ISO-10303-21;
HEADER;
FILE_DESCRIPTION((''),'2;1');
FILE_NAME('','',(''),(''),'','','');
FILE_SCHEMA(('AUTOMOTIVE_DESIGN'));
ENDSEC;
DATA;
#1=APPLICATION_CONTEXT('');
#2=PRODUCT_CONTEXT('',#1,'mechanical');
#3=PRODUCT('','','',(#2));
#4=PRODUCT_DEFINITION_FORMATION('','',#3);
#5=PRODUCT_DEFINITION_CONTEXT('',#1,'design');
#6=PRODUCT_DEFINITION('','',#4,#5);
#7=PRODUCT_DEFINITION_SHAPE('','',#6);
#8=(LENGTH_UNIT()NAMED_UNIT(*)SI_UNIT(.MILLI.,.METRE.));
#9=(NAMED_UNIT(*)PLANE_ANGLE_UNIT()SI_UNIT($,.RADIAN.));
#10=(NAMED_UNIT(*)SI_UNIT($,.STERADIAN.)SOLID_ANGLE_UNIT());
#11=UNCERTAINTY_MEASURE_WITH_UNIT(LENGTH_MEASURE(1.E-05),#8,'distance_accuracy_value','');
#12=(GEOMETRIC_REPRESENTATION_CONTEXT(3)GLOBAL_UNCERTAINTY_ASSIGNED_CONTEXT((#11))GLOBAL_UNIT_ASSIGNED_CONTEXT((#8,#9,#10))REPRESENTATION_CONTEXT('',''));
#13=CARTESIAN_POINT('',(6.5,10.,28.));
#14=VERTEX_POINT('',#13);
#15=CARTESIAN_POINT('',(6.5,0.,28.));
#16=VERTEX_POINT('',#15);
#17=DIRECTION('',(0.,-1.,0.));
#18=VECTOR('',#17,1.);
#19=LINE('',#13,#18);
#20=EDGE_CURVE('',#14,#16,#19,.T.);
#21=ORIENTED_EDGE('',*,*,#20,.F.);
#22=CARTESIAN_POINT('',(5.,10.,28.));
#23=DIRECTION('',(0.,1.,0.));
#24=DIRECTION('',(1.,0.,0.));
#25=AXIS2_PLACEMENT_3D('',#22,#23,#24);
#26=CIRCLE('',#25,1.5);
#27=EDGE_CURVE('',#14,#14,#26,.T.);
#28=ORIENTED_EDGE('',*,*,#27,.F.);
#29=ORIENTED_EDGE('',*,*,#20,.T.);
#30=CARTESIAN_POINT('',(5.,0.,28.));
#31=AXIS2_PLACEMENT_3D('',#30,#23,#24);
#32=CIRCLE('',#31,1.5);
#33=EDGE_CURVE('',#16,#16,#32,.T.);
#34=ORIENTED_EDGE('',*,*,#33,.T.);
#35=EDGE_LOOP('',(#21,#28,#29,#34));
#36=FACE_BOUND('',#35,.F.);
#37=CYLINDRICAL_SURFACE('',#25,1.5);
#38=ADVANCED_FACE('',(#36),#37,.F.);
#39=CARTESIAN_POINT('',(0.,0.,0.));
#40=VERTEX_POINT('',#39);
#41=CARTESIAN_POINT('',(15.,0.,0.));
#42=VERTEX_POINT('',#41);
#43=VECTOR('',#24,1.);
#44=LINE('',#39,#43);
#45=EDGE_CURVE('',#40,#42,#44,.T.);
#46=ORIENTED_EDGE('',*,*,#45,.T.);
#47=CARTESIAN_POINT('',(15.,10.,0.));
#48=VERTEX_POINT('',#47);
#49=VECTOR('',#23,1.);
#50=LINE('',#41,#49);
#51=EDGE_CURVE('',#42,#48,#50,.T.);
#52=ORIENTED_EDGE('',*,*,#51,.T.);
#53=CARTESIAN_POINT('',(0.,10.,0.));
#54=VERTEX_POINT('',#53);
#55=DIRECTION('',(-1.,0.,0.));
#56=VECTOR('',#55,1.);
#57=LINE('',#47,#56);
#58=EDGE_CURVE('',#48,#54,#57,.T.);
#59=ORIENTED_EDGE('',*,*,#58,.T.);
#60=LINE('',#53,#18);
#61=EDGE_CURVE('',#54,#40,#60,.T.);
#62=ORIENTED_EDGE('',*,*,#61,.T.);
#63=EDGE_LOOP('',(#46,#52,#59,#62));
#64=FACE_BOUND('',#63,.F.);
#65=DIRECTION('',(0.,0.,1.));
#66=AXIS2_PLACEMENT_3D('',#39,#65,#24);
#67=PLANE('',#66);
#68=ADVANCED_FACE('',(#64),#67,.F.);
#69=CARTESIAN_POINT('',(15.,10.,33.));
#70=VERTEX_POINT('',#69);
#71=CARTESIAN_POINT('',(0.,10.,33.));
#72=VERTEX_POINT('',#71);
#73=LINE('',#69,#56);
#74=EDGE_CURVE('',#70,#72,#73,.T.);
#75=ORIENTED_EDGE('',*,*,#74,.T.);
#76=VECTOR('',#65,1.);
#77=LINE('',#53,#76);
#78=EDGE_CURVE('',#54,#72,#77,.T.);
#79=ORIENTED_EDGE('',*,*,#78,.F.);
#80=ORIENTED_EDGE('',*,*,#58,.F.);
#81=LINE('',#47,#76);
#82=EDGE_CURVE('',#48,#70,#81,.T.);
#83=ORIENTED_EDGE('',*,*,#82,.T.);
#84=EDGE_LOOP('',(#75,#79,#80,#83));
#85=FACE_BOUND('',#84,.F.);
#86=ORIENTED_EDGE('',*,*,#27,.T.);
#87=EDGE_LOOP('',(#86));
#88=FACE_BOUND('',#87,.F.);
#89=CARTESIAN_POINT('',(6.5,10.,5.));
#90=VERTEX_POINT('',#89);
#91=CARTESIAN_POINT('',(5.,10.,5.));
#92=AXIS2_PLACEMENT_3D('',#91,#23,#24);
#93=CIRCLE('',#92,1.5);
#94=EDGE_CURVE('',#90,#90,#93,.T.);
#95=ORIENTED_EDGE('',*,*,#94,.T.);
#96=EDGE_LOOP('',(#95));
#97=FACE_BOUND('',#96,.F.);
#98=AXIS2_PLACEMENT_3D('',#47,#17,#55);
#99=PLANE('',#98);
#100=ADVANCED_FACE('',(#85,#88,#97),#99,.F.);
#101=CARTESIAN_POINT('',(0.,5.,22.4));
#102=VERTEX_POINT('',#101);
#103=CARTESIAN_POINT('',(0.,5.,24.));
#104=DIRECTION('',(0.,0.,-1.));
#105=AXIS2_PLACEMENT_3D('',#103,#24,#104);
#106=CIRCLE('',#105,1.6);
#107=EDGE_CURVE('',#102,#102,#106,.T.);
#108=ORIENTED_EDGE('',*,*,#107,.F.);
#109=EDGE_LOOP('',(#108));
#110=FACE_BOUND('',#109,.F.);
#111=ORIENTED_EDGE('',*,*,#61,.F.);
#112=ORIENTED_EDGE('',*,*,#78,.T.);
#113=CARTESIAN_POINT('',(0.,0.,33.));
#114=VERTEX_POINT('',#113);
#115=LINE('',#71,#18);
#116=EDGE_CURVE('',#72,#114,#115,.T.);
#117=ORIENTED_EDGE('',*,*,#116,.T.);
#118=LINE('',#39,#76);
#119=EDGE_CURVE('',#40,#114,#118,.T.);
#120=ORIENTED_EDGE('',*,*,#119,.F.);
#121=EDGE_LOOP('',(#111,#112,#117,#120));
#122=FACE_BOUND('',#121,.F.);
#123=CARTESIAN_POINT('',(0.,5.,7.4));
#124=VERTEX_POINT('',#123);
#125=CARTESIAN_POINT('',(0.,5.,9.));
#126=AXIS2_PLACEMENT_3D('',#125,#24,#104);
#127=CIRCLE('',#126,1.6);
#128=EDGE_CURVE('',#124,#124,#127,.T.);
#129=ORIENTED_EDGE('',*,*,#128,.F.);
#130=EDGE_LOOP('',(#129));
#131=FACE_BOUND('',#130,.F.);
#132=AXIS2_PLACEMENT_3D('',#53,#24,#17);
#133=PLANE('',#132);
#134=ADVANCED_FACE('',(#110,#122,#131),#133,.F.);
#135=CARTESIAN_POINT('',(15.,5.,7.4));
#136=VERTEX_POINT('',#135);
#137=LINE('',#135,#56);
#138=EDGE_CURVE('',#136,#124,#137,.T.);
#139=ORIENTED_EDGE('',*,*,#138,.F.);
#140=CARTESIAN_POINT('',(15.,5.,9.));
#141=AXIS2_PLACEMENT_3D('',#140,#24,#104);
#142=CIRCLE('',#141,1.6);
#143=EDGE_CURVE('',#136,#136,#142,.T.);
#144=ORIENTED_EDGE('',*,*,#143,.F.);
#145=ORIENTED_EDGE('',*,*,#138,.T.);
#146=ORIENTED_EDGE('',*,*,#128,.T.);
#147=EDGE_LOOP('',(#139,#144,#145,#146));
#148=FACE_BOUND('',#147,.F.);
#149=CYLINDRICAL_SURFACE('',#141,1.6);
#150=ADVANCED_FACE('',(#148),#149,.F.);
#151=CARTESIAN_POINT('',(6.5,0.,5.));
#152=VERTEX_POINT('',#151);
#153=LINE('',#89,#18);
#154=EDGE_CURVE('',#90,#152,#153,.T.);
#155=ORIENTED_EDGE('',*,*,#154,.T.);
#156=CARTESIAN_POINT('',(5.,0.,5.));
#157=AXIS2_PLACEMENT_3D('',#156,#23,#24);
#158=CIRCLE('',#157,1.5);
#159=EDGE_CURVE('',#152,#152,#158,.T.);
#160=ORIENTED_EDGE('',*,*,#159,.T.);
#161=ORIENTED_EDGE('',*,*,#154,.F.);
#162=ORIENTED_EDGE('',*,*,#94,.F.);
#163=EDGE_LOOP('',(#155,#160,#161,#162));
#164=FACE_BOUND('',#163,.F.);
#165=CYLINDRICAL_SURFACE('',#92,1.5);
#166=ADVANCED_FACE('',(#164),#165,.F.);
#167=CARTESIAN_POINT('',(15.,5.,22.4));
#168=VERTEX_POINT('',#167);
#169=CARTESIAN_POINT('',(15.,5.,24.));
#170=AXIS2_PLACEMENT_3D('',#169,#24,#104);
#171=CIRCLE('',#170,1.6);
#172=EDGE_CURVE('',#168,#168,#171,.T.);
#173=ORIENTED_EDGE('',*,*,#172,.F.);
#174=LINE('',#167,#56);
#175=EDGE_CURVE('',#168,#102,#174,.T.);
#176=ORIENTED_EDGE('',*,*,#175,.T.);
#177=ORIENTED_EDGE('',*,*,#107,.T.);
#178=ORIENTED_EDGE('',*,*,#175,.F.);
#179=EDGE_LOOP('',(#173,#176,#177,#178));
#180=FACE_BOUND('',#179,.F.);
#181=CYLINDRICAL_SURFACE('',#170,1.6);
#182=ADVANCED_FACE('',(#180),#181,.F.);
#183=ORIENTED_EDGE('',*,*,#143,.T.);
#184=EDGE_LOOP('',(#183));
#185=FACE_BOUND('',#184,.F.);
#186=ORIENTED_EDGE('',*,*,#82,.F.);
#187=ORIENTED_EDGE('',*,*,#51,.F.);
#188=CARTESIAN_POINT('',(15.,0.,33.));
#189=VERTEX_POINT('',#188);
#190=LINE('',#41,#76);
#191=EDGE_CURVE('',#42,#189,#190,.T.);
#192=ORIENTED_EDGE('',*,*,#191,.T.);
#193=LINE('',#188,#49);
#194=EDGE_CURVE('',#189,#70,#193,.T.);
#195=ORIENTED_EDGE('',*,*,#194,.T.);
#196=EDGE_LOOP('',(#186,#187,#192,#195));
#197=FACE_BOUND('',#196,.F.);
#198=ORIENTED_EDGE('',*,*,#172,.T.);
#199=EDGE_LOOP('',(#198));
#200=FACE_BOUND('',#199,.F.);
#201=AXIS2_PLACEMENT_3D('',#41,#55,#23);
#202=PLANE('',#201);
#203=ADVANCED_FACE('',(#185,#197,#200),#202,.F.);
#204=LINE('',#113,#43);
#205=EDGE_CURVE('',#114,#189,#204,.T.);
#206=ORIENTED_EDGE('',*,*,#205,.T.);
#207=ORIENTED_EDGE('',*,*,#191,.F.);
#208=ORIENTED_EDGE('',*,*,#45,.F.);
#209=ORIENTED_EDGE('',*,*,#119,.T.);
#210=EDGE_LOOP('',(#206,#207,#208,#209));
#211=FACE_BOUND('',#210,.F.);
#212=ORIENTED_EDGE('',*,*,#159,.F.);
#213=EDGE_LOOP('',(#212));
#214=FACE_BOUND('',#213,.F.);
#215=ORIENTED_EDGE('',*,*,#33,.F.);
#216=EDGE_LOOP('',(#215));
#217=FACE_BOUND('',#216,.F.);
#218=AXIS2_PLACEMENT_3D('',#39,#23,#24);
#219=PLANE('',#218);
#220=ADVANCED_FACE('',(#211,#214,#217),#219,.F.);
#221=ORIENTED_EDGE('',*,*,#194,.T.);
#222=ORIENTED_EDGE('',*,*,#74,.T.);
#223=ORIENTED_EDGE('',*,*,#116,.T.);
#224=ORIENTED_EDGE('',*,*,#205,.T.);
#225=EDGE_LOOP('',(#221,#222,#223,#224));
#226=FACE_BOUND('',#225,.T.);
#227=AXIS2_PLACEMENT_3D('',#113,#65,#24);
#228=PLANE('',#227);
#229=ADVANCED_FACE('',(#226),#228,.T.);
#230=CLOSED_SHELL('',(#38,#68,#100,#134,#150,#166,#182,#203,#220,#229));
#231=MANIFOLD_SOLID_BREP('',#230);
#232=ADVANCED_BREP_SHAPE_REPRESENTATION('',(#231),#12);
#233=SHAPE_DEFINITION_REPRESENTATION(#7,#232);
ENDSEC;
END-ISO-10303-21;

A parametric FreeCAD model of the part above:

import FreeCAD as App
import Part
import Sketcher

V = App.Vector


def add_polygon(sketch, points):
    """Adds a closed chain of lines whose ends are joined by coincident constraints."""
    first, n = sketch.GeometryCount, len(points)
    for a, b in zip(points, points[1:] + points[:1]):
        sketch.addGeometry(Part.LineSegment(App.Vector(*a, 0), App.Vector(*b, 0)), False)
    for i in range(n):
        sketch.addConstraint(Sketcher.Constraint("Coincident", first + i, 2, first + (i + 1) % n, 1))

doc = App.newDocument("Part")
body = doc.addObject("PartDesign::Body", "Body")

# Sketch on XY plane
sketch1 = body.newObject("Sketcher::SketchObject", "Sketch")
sketch1.AttachmentSupport = (doc.getObject("XY_Plane"), [""])
sketch1.MapMode = "FlatFace"
add_polygon(sketch1, [(0, 10), (0, 0), (15, 0), (15, 10)])  # lines 0-3
sketch1.addConstraint([
    Sketcher.Constraint("Vertical", 0),
    Sketcher.Constraint("Horizontal", 1),
    Sketcher.Constraint("Vertical", 2),
    Sketcher.Constraint("Horizontal", 3),
    Sketcher.Constraint("Coincident", 0, 2, -1, 1),
    Sketcher.Constraint("DistanceX", 1, 1, 1, 2, 15.0),
    Sketcher.Constraint("DistanceY", 0, 2, 0, 1, 10.0),
])
pad1 = body.newObject("PartDesign::Pad", "Pad")
pad1.Profile = sketch1
pad1.Length = 33

# Sketch on XZ plane
sketch2 = body.newObject("Sketcher::SketchObject", "Sketch001")
sketch2.AttachmentSupport = (doc.getObject("XZ_Plane"), [""])
sketch2.MapMode = "FlatFace"
sketch2.AttachmentOffset = App.Placement(V(0, 0, -10), App.Rotation())
sketch2.addGeometry([
    Part.Circle(V(5, 5, 0), V(0, 0, 1), 1.5),
    Part.Circle(V(5, 28, 0), V(0, 0, 1), 1.5),
], False)
sketch2.addConstraint([
    Sketcher.Constraint("Equal", 0, 1),
    Sketcher.Constraint("Vertical", 0, 3, 1, 3),
    Sketcher.Constraint("Diameter", 0, 3.0),
    Sketcher.Constraint("DistanceX", -1, 1, 0, 3, 5.0),
    Sketcher.Constraint("DistanceY", -1, 1, 0, 3, 5.0),
    Sketcher.Constraint("DistanceY", -1, 1, 1, 3, 28.0),
])
pocket1 = body.newObject("PartDesign::Pocket", "Pocket")
pocket1.Profile = sketch2
pocket1.Length = 10
pocket1.Reversed = True

# Sketch on YZ plane
sketch3 = body.newObject("Sketcher::SketchObject", "Sketch002")
sketch3.AttachmentSupport = (doc.getObject("YZ_Plane"), [""])
sketch3.MapMode = "FlatFace"
sketch3.AttachmentOffset = App.Placement(V(0, 0, 15), App.Rotation())
sketch3.addGeometry([
    Part.Circle(V(5, 9, 0), V(0, 0, 1), 1.6),
    Part.Circle(V(5, 24, 0), V(0, 0, 1), 1.6),
], False)
sketch3.addConstraint([
    Sketcher.Constraint("Equal", 0, 1),
    Sketcher.Constraint("Vertical", 0, 3, 1, 3),
    Sketcher.Constraint("Diameter", 0, 3.2),
    Sketcher.Constraint("DistanceX", -1, 1, 0, 3, 5.0),
    Sketcher.Constraint("DistanceY", -1, 1, 0, 3, 9.0),
    Sketcher.Constraint("DistanceY", -1, 1, 1, 3, 24.0),
])
pocket2 = body.newObject("PartDesign::Pocket", "Pocket001")
pocket2.Profile = sketch3
pocket2.Length = 15

doc.recompute()
